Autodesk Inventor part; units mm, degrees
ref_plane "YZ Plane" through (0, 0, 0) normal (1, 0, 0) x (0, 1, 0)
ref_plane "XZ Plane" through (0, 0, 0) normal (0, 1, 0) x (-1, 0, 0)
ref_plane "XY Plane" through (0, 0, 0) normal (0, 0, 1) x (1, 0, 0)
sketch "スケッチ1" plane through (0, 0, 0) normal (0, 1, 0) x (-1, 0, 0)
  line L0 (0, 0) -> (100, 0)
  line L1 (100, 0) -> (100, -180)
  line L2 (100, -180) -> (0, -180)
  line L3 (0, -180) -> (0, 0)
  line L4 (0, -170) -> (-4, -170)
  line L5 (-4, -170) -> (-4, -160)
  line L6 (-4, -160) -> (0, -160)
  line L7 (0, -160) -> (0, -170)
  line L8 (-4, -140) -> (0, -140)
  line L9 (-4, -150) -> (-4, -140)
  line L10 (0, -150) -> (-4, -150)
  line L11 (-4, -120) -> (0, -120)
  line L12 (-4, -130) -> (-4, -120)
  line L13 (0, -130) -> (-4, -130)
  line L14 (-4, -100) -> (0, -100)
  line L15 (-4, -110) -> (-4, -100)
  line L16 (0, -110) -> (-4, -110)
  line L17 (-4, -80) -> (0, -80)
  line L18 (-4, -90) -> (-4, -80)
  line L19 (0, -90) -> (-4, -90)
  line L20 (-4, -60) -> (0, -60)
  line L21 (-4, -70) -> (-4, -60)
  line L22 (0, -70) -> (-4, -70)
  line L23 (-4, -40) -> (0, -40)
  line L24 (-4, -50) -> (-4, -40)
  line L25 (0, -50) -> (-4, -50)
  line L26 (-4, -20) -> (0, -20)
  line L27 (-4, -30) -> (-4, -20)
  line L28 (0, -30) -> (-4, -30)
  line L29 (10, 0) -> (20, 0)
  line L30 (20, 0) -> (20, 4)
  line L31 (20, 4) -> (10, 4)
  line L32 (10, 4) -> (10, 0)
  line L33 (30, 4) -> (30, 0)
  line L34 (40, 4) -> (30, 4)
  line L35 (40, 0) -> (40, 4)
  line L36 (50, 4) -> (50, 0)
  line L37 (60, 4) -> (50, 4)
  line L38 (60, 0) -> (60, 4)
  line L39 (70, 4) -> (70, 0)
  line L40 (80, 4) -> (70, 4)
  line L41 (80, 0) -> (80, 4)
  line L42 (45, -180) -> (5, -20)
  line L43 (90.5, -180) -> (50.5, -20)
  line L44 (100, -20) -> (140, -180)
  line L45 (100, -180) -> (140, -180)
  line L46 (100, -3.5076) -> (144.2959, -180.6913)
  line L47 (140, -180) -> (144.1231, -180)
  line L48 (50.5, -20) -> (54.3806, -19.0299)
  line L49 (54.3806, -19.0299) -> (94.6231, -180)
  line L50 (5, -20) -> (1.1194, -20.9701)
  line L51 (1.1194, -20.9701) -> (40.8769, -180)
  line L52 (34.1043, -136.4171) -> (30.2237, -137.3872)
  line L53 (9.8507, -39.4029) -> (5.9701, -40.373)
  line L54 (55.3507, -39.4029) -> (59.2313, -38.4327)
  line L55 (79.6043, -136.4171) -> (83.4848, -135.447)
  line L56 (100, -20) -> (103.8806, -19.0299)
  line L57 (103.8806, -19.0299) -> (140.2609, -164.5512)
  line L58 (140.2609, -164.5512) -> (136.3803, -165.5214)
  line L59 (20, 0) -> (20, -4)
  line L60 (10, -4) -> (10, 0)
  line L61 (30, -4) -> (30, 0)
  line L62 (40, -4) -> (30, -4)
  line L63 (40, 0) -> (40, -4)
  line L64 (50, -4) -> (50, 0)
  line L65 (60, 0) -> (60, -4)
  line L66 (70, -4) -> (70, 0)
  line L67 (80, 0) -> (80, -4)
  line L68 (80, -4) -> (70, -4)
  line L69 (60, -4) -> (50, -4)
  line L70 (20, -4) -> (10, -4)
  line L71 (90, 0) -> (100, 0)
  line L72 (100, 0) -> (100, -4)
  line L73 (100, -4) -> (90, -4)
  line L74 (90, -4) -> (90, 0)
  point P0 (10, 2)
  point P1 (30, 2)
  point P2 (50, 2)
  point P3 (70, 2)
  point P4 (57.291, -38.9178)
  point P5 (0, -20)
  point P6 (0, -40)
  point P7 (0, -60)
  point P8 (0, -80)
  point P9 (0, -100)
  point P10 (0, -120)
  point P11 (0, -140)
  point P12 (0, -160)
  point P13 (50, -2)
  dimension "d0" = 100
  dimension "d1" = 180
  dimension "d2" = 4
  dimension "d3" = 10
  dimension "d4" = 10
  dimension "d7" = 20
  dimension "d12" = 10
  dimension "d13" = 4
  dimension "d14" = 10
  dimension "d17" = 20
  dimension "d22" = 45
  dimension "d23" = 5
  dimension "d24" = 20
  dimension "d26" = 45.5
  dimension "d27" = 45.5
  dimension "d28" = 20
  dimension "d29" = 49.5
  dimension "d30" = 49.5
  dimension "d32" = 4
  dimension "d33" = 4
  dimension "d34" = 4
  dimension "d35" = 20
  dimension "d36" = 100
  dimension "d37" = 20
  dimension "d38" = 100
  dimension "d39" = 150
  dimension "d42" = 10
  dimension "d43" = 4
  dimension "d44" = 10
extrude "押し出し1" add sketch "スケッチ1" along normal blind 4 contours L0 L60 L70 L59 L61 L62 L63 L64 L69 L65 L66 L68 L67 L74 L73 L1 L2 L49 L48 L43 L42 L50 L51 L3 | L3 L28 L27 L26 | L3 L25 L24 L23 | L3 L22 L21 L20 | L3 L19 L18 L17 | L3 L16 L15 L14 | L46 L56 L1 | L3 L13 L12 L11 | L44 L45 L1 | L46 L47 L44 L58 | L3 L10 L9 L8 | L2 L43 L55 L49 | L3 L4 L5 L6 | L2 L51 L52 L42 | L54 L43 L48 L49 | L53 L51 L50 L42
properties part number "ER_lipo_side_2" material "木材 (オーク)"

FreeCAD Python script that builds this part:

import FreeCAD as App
import Part
import Sketcher
Q = App.Units.Quantity


def add_polygon(sketch, points):
    """Adds a closed chain of lines whose ends are joined by coincident constraints."""
    first, n = sketch.GeometryCount, len(points)
    for a, b in zip(points, points[1:] + points[:1]):
        sketch.addGeometry(Part.LineSegment(App.Vector(*a, 0), App.Vector(*b, 0)), False)
    for i in range(n):
        sketch.addConstraint(Sketcher.Constraint("Coincident", first + i, 2, first + (i + 1) % n, 1))

doc = App.newDocument("Part")
body = doc.addObject("PartDesign::Body", "Body")

# Sketch on XZ plane
sketch1 = doc.addObject("Sketcher::SketchObject", "Sketch")
body.addObject(sketch1)
sketch1.AttachmentSupport = (doc.XZ_Plane, [""])
sketch1.MapMode = "FlatFace"
add_polygon(sketch1, [(-10, 0), (0, 0), (0, -20), (4, -20), (4, -30), (0, -30), (0, -40), (4, -40), (4, -50), (0, -50), (0, -60), (4, -60), (4, -70), (0, -70), (0, -80), (4, -80), (4, -90), (0, -90), (0, -100), (4, -100), (4, -110), (0, -110), (0, -120), (4, -120), (4, -130), (0, -130), (0, -140), (4, -140), (4, -150), (0, -150), (0, -160), (4, -160), (4, -170), (0, -170), (0, -180), (-144.12, -180), (-140.26, -164.55), (-136.38, -165.52), (-100, -20), (-103.88, -19.03), (-100, -3.51), (-100, -4), (-90, -4), (-90, 0), (-80, 0), (-80, -4), (-70, -4), (-70, 0), (-60, 0), (-60, -4), (-50, -4), (-50, 0), (-40, 0), (-40, -4), (-30, -4), (-30, 0), (-20, 0), (-20, -4), (-10, -4)])  # lines 0-58
add_polygon(sketch1, [(-59.23, -38.43), (-83.48, -135.45), (-79.6, -136.42), (-55.35, -39.4)])  # lines 59-62
add_polygon(sketch1, [(-9.85, -39.4), (-34.1, -136.42), (-30.22, -137.39), (-5.97, -40.37)])  # lines 63-66
sketch1.addConstraint([
    Sketcher.Constraint("Horizontal", 0),
    Sketcher.Constraint("Vertical", 1),
    Sketcher.Constraint("Horizontal", 2),
    Sketcher.Constraint("Vertical", 3),
    Sketcher.Constraint("Horizontal", 4),
    Sketcher.Constraint("Vertical", 5),
    Sketcher.Constraint("Horizontal", 6),
    Sketcher.Constraint("Vertical", 7),
    Sketcher.Constraint("Horizontal", 8),
    Sketcher.Constraint("Vertical", 9),
    Sketcher.Constraint("Horizontal", 10),
    Sketcher.Constraint("Vertical", 11),
    Sketcher.Constraint("Horizontal", 12),
    Sketcher.Constraint("Vertical", 13),
    Sketcher.Constraint("Horizontal", 14),
    Sketcher.Constraint("Vertical", 15),
    Sketcher.Constraint("Horizontal", 16),
    Sketcher.Constraint("Vertical", 17),
    Sketcher.Constraint("Horizontal", 18),
    Sketcher.Constraint("Vertical", 19),
    Sketcher.Constraint("Horizontal", 20),
    Sketcher.Constraint("Vertical", 21),
    Sketcher.Constraint("Horizontal", 22),
    Sketcher.Constraint("Vertical", 23),
    Sketcher.Constraint("Horizontal", 24),
    Sketcher.Constraint("Vertical", 25),
    Sketcher.Constraint("Horizontal", 26),
    Sketcher.Constraint("Vertical", 27),
    Sketcher.Constraint("Horizontal", 28),
    Sketcher.Constraint("Vertical", 29),
    Sketcher.Constraint("Horizontal", 30),
    Sketcher.Constraint("Vertical", 31),
    Sketcher.Constraint("Horizontal", 32),
    Sketcher.Constraint("Vertical", 33),
    Sketcher.Constraint("Horizontal", 34),
    Sketcher.Constraint("Vertical", 40),
    Sketcher.Constraint("Horizontal", 41),
    Sketcher.Constraint("Vertical", 42),
    Sketcher.Constraint("Horizontal", 43),
    Sketcher.Constraint("Vertical", 44),
    Sketcher.Constraint("Horizontal", 45),
    Sketcher.Constraint("Vertical", 46),
    Sketcher.Constraint("Horizontal", 47),
    Sketcher.Constraint("Vertical", 48),
    Sketcher.Constraint("Horizontal", 49),
    Sketcher.Constraint("Vertical", 50),
    Sketcher.Constraint("Horizontal", 51),
    Sketcher.Constraint("Vertical", 52),
    Sketcher.Constraint("Horizontal", 53),
    Sketcher.Constraint("Vertical", 54),
    Sketcher.Constraint("Horizontal", 55),
    Sketcher.Constraint("Vertical", 56),
    Sketcher.Constraint("Horizontal", 57),
    Sketcher.Constraint("Vertical", 58),
    Sketcher.Constraint("Coincident", 0, 2, -1, 1),
    Sketcher.Constraint("PointOnObject", 4, 2, -2),
    Sketcher.Constraint("PointOnObject", 8, 2, -2),
    Sketcher.Constraint("PointOnObject", 12, 2, -2),
    Sketcher.Constraint("PointOnObject", 16, 2, -2),
    Sketcher.Constraint("PointOnObject", 20, 2, -2),
    Sketcher.Constraint("PointOnObject", 24, 2, -2),
    Sketcher.Constraint("PointOnObject", 28, 2, -2),
    Sketcher.Constraint("PointOnObject", 32, 2, -2),
    Sketcher.Constraint("PointOnObject", 42, 2, -1),
    Sketcher.Constraint("PointOnObject", 46, 2, -1),
    Sketcher.Constraint("PointOnObject", 50, 2, -1),
    Sketcher.Constraint("PointOnObject", 54, 2, -1),
    Sketcher.Constraint("Perpendicular", 35, 36),
    Sketcher.Constraint("Perpendicular", 36, 37),
    Sketcher.Constraint("Perpendicular", 37, 38),
    Sketcher.Constraint("Perpendicular", 38, 39),
    Sketcher.Constraint("Parallel", 39, 59),
    Sketcher.Constraint("Perpendicular", 59, 60),
    Sketcher.Constraint("Perpendicular", 60, 61),
    Sketcher.Constraint("Perpendicular", 61, 62),
    Sketcher.Constraint("Perpendicular", 62, 63),
    Sketcher.Constraint("Perpendicular", 63, 64),
    Sketcher.Constraint("Perpendicular", 64, 65),
    Sketcher.Constraint("Perpendicular", 65, 66),
    Sketcher.Constraint("Horizontal", 2, 2, 37, 2),
    Sketcher.Constraint("Horizontal", 41, 2, 44, 2),
    Sketcher.Constraint("Horizontal", 45, 2, 48, 2),
    Sketcher.Constraint("Horizontal", 49, 2, 52, 2),
    Sketcher.Constraint("Horizontal", 53, 2, 56, 2),
    Sketcher.Constraint("Horizontal", 60, 2, 63, 2),
    Sketcher.Constraint("Horizontal", 61, 2, 66, 2),
    Sketcher.Constraint("Vertical", 3, 2, 6, 2),
    Sketcher.Constraint("Vertical", 7, 2, 10, 2),
    Sketcher.Constraint("Vertical", 11, 2, 14, 2),
    Sketcher.Constraint("Vertical", 15, 2, 18, 2),
    Sketcher.Constraint("Vertical", 19, 2, 22, 2),
    Sketcher.Constraint("Vertical", 23, 2, 26, 2),
    Sketcher.Constraint("Vertical", 27, 2, 30, 2),
    Sketcher.Constraint("Vertical", 37, 2, 39, 2),
    Sketcher.Constraint("Equal", 0, 41),
    Sketcher.Constraint("Equal", 41, 43),
    Sketcher.Constraint("Equal", 43, 45),
    Sketcher.Constraint("Equal", 45, 47),
    Sketcher.Constraint("Equal", 47, 49),
    Sketcher.Constraint("Equal", 49, 51),
    Sketcher.Constraint("Equal", 51, 53),
    Sketcher.Constraint("Equal", 53, 55),
    Sketcher.Constraint("Equal", 55, 57),
    Sketcher.Constraint("Equal", 57, 3),
    Sketcher.Constraint("Equal", 3, 5),
    Sketcher.Constraint("Equal", 5, 7),
    Sketcher.Constraint("Equal", 7, 9),
    Sketcher.Constraint("Equal", 9, 11),
    Sketcher.Constraint("Equal", 11, 13),
    Sketcher.Constraint("Equal", 13, 15),
    Sketcher.Constraint("Equal", 15, 17),
    Sketcher.Constraint("Equal", 17, 19),
    Sketcher.Constraint("Equal", 19, 21),
    Sketcher.Constraint("Equal", 21, 23),
    Sketcher.Constraint("Equal", 23, 25),
    Sketcher.Constraint("Equal", 25, 27),
    Sketcher.Constraint("Equal", 27, 29),
    Sketcher.Constraint("Equal", 29, 31),
    Sketcher.Constraint("Equal", 31, 33),
    Sketcher.Constraint("Equal", 32, 42),
    Sketcher.Constraint("Equal", 36, 38),
    Sketcher.Constraint("Equal", 38, 60),
    Sketcher.Constraint("Equal", 62, 64),
    Sketcher.Constraint("DistanceX", 0, 1, 0, 2, Q("10 mm")),
    Sketcher.Constraint("DistanceX", 2, 1, 2, 2, Q("4 mm")),
    Sketcher.Constraint("DistanceY", 1, 2, 1, 1, Q("20 mm")),
    Sketcher.Constraint("Distance", 36, Q("4 mm")),
    Sketcher.Constraint("Distance", 37, Q("150 mm")),
    Sketcher.Constraint("Distance", 59, Q("100 mm")),
    Sketcher.Constraint("Distance", 39, Q("16 mm")),
    Sketcher.Constraint("DistanceY", 59, 2, -1, 1, Q("135.447 mm")),
    Sketcher.Constraint("DistanceX", 59, 2, -1, 1, Q("83.4849 mm")),
    Sketcher.Constraint("DistanceX", 63, 2, -1, 1, Q("34.1043 mm")),
])
pad1 = doc.addObject("PartDesign::Pad", "Pad")
body.addObject(pad1)
pad1.Profile = sketch1
pad1.Length = 4
pad1.Reversed = True

doc.recompute()
